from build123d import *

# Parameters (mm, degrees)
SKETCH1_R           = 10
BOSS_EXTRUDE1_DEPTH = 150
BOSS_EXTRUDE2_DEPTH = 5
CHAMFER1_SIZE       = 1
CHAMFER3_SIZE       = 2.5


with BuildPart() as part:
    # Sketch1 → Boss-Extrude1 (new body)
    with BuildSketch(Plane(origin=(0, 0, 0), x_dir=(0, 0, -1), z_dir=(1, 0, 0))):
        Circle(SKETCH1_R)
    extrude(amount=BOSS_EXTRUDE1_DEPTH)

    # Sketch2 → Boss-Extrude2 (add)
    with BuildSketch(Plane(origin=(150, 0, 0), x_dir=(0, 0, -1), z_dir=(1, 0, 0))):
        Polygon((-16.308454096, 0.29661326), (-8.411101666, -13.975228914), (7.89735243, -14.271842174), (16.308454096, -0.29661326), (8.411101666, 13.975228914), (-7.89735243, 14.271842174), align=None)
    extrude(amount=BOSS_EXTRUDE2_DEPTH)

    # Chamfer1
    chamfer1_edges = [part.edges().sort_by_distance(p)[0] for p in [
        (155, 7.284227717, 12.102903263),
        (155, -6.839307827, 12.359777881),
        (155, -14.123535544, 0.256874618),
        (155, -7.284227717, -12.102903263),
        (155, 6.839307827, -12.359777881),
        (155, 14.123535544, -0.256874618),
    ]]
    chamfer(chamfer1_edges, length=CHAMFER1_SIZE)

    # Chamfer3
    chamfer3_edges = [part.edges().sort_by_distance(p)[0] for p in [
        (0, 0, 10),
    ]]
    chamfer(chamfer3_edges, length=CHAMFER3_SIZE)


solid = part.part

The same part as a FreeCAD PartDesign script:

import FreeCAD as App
import Part
import Sketcher

V = App.Vector
Q = App.Units.Quantity


def edges_at(feature, points):
    """Names of the edges that pass closest to the given points."""
    edges = feature.Shape.Edges
    near = lambda p: min(range(len(edges)), key=lambda i: edges[i].distToShape(Part.Vertex(*p))[0])
    return sorted({f"Edge{near(p) + 1}" for p in points})

doc = App.newDocument("Part")
body = doc.addObject("PartDesign::Body", "Body")

sketch1 = body.newObject("Sketcher::SketchObject", "Sketch")
sketch1.AttachmentSupport = (doc.getObject("YZ_Plane"), [""])
sketch1.MapMode = "FlatFace"
sketch1.addGeometry(Part.Circle(V(0, 0, 0), V(0, 0, 1), 10), False)
sketch1.addConstraint(Sketcher.Constraint("Coincident", 0, 3, -1, 1))
sketch1.addConstraint(Sketcher.Constraint("Diameter", 0, Q("20 mm")))
pad1 = body.newObject("PartDesign::Pad", "Pad")
pad1.Profile = sketch1
pad1.Length = 150

sketch2 = body.newObject("Sketcher::SketchObject", "Sketch001")
sketch2.AttachmentSupport = (doc.getObject("YZ_Plane"), [""])
sketch2.MapMode = "FlatFace"
sketch2.AttachmentOffset = App.Placement(V(0, 0, 150), App.Rotation())
sketch2.addGeometry(Part.LineSegment(V(0, 16, 0), V(-14, 8, 0)), False)
sketch2.addGeometry(Part.LineSegment(V(-14, 8, 0), V(-14, -8, 0)), False)
sketch2.addGeometry(Part.LineSegment(V(-14, -8, 0), V(0, -16, 0)), False)
sketch2.addGeometry(Part.LineSegment(V(0, -16, 0), V(14, -8, 0)), False)
sketch2.addGeometry(Part.LineSegment(V(14, -8, 0), V(14, 8, 0)), False)
sketch2.addGeometry(Part.LineSegment(V(14, 8, 0), V(0, 16, 0)), False)
sketch2.addConstraint(Sketcher.Constraint("Coincident", 0, 2, 1, 1))
sketch2.addConstraint(Sketcher.Constraint("Coincident", 1, 2, 2, 1))
sketch2.addConstraint(Sketcher.Constraint("Coincident", 2, 2, 3, 1))
sketch2.addConstraint(Sketcher.Constraint("Coincident", 3, 2, 4, 1))
sketch2.addConstraint(Sketcher.Constraint("Coincident", 4, 2, 5, 1))
sketch2.addConstraint(Sketcher.Constraint("Coincident", 5, 2, 0, 1))
sketch2.addConstraint(Sketcher.Constraint("Symmetric", 0, 2, 3, 2, -1, 1))
sketch2.addConstraint(Sketcher.Constraint("Symmetric", 1, 2, 4, 2, -1, 1))
sketch2.addConstraint(Sketcher.Constraint("Symmetric", 2, 2, 5, 2, -1, 1))
sketch2.addConstraint(Sketcher.Constraint("Equal", 0, 1))
sketch2.addConstraint(Sketcher.Constraint("Equal", 1, 2))
sketch2.addConstraint(Sketcher.Constraint("DistanceY", -1, 1, 0, 2, Q("8.411102 mm")))
sketch2.addConstraint(Sketcher.Constraint("DistanceY", 2, 2, 1, 2, Q("8.411102 mm")))
sketch2.addConstraint(Sketcher.Constraint("Distance", 0, Q("16.311151 mm")))
sketch2.addConstraint(Sketcher.Constraint("DistanceX", 0, 2, -1, 1, Q("13.975229 mm")))
pad2 = body.newObject("PartDesign::Pad", "Pad001")
pad2.Profile = sketch2
pad2.Length = 5
doc.recompute()

chamfer = body.newObject("PartDesign::Chamfer", "Chamfer")
chamfer.Base = (pad2, edges_at(pad2, [
    (155, 7.284, 12.103),
    (155, -6.839, 12.36),
    (155, -14.124, 0.257),
    (155, -7.284, -12.103),
    (155, 6.839, -12.36),
    (155, 14.124, -0.257),
]))
chamfer.Size = 1
doc.recompute()

chamfer2 = body.newObject("PartDesign::Chamfer", "Chamfer001")
chamfer2.Base = (chamfer, edges_at(chamfer, [(0, 0, 10)]))
chamfer2.Size = 2.5

doc.recompute()
